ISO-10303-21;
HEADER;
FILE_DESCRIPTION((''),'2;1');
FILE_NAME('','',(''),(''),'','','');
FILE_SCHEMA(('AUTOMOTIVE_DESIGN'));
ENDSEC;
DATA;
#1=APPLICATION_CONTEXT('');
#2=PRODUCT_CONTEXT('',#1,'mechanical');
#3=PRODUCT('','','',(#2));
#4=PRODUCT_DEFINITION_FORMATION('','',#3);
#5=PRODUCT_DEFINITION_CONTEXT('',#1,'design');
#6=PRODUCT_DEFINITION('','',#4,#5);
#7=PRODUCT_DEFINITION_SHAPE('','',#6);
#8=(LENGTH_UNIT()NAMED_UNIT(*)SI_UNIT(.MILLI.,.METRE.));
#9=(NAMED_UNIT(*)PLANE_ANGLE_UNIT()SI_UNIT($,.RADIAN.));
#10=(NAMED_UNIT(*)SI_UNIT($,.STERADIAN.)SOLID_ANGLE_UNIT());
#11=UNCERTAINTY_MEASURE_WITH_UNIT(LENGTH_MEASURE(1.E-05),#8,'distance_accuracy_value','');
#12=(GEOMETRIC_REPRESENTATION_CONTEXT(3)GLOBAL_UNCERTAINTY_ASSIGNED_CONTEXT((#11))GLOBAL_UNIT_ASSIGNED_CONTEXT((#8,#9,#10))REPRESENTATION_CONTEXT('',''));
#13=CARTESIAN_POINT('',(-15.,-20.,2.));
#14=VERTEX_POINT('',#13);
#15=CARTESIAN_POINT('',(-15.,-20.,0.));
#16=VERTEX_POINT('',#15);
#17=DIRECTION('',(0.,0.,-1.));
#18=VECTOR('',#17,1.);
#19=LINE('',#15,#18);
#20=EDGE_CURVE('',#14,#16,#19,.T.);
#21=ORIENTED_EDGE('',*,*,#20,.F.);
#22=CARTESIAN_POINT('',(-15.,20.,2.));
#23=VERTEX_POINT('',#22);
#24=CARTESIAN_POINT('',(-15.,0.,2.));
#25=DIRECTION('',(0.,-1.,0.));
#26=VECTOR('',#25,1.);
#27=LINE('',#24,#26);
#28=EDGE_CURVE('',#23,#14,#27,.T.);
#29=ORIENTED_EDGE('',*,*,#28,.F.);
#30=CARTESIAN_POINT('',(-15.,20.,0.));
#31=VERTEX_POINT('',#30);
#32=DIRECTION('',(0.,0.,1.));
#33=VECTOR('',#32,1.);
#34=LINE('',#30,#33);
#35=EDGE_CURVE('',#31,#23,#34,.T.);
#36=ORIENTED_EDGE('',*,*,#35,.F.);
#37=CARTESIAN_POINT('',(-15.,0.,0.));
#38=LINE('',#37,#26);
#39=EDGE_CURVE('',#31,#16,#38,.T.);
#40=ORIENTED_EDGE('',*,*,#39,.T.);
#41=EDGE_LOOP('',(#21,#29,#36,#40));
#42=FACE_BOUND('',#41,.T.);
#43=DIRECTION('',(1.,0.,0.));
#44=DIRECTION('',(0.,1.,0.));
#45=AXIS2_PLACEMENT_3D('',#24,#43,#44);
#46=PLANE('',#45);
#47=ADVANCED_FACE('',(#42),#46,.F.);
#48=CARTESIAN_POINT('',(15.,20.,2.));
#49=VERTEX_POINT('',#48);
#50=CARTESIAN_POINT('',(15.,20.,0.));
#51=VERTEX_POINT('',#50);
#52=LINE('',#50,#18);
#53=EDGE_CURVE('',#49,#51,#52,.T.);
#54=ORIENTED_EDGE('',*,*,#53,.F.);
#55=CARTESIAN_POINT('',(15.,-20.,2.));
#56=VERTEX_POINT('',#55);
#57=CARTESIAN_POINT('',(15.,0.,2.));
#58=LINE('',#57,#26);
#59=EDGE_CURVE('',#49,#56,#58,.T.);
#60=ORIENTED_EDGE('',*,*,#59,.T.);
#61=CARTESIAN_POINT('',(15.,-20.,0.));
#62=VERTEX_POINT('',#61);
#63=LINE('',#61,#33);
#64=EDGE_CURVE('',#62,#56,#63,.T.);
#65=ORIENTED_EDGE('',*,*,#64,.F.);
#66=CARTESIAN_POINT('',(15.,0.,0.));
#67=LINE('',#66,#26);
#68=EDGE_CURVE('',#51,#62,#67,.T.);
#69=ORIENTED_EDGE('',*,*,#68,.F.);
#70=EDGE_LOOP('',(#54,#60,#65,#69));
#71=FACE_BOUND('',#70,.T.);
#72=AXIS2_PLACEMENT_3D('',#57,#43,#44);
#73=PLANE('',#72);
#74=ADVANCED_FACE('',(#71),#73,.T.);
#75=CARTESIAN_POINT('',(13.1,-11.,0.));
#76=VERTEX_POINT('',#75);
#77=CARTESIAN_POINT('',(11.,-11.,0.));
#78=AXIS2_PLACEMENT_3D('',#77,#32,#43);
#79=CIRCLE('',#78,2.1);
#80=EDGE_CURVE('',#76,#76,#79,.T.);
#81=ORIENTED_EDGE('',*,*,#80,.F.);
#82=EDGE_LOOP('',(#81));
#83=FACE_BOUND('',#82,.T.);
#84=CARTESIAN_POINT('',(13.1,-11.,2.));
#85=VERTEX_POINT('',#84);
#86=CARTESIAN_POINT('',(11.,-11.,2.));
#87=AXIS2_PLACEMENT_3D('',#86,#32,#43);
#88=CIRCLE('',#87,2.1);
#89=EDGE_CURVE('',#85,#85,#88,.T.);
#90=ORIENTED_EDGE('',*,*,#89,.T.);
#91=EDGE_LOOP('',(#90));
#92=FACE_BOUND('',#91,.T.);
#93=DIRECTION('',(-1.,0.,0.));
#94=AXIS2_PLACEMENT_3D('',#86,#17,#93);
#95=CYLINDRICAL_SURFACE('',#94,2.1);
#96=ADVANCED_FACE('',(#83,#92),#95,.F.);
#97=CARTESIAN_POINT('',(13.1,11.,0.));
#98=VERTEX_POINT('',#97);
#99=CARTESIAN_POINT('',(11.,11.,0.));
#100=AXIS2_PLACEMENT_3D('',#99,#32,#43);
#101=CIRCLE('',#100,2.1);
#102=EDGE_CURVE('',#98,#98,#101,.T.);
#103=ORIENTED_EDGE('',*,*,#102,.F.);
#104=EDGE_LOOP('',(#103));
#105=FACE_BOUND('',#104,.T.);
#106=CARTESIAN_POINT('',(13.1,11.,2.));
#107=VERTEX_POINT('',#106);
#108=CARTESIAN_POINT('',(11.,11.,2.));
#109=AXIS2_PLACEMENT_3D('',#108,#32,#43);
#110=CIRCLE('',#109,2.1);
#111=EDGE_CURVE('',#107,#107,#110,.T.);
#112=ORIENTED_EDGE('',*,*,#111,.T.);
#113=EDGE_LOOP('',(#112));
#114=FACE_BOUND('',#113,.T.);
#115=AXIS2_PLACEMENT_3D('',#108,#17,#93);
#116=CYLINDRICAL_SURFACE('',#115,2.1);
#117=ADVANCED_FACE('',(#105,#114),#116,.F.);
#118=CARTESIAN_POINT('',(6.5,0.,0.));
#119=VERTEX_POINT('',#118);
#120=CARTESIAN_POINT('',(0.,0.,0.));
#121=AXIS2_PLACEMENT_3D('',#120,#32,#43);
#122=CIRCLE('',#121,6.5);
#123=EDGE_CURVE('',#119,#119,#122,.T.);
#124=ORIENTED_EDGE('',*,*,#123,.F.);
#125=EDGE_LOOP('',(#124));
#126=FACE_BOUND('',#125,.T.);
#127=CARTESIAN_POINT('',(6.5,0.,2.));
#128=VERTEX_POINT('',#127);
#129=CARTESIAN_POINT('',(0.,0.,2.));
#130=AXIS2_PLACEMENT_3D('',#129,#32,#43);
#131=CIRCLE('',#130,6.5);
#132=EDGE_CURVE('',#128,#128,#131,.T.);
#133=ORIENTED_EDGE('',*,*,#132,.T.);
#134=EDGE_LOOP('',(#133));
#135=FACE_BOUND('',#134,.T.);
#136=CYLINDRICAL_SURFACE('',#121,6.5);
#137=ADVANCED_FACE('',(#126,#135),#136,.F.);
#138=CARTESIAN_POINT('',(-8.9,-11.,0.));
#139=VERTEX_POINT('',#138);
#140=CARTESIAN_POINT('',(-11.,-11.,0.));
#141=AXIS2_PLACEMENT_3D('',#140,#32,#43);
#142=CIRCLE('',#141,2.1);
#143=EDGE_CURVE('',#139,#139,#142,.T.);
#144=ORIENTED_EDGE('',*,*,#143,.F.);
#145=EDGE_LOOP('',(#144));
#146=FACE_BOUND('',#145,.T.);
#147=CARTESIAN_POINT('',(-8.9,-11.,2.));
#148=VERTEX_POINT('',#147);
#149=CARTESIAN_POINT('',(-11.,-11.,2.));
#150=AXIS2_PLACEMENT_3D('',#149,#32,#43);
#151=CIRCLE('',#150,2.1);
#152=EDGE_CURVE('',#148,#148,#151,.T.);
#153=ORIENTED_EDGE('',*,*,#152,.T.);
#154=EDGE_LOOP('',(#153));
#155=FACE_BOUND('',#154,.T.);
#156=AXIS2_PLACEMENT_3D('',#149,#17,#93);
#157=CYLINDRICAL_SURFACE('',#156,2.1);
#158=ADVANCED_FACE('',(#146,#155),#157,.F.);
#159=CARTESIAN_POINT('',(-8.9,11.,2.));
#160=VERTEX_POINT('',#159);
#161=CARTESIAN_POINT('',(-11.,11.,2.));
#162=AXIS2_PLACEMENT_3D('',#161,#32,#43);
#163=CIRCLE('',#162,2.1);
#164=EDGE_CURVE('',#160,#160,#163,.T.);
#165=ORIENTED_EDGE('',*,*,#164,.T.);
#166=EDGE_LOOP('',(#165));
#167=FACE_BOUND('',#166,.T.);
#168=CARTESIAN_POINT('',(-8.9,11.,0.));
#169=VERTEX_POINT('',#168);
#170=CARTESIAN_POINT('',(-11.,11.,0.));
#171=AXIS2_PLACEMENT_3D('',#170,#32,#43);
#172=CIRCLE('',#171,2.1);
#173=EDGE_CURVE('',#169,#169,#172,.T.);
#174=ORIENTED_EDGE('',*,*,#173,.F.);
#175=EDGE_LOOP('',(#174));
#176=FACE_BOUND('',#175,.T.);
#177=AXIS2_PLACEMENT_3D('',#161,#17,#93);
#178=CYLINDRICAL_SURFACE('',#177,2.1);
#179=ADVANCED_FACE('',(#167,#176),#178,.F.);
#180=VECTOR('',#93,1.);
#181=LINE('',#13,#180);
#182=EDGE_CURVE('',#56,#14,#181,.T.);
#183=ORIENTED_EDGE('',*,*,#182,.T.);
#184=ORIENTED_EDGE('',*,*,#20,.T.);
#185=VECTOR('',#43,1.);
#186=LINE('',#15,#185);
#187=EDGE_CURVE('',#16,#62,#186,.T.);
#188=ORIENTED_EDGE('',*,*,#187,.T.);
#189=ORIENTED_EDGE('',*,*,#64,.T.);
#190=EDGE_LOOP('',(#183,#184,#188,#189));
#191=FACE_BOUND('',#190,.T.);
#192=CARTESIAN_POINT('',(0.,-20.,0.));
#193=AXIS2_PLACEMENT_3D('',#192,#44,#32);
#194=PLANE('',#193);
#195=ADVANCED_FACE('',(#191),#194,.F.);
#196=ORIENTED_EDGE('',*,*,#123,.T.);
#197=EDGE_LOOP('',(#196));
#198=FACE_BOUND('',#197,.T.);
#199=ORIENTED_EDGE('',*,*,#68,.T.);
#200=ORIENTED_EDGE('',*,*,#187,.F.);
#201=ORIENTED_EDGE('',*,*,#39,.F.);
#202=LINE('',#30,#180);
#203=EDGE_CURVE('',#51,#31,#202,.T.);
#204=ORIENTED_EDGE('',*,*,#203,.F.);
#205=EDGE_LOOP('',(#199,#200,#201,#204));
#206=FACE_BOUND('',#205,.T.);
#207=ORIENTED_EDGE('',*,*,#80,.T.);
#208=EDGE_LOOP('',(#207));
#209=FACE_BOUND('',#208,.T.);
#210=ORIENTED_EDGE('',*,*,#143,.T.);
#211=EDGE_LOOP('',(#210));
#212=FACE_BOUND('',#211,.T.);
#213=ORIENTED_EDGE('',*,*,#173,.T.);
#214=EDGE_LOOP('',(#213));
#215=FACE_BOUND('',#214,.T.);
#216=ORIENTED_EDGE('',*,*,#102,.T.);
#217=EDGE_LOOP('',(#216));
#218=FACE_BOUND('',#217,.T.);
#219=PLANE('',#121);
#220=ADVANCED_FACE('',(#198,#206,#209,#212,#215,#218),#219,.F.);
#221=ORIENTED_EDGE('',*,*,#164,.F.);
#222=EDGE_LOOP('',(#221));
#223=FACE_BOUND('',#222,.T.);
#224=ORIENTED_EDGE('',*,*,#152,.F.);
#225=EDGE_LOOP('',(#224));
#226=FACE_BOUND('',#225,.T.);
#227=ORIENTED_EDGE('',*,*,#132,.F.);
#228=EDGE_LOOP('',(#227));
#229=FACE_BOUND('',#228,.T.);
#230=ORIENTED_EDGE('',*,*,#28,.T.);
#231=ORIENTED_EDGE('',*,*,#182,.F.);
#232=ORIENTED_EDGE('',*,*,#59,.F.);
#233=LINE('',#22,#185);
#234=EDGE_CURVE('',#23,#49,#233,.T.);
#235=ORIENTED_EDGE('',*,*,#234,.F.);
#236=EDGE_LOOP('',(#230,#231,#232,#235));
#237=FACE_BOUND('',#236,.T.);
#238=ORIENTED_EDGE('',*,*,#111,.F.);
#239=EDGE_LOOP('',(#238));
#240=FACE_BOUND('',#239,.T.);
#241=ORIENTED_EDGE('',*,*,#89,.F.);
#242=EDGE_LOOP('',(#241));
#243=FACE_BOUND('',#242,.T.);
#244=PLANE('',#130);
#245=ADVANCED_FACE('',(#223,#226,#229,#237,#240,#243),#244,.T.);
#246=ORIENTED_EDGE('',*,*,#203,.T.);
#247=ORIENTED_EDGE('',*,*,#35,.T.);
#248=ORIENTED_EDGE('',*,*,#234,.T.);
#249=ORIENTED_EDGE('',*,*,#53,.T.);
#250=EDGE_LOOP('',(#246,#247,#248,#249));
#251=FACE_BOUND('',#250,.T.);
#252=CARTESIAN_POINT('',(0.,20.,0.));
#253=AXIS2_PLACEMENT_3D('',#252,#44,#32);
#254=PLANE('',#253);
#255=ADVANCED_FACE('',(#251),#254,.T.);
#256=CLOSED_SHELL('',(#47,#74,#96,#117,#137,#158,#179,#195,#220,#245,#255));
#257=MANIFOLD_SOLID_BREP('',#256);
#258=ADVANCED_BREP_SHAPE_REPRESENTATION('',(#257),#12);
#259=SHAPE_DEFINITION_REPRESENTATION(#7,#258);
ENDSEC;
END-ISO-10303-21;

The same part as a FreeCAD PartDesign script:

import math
import FreeCAD as App
import Part
import Sketcher
Q = App.Units.Quantity


def add_polygon(sketch, points):
    """Adds a closed chain of lines whose ends are joined by coincident constraints."""
    first, n = sketch.GeometryCount, len(points)
    for a, b in zip(points, points[1:] + points[:1]):
        sketch.addGeometry(Part.LineSegment(App.Vector(*a, 0), App.Vector(*b, 0)), False)
    for i in range(n):
        sketch.addConstraint(Sketcher.Constraint("Coincident", first + i, 2, first + (i + 1) % n, 1))

doc = App.newDocument("Part")
body = doc.addObject("PartDesign::Body", "Body")

# Sketch on XY plane
sketch1 = body.newObject("Sketcher::SketchObject", "Sketch")
sketch1.AttachmentSupport = (doc.getObject("XY_Plane"), [""])
sketch1.MapMode = "FlatFace"
add_polygon(sketch1, [(-15, 15), (-15, -15), (15, -15), (15, 15)])  # lines 0-3
sketch1.addGeometry(Part.ArcOfCircle(Part.Circle(App.Vector(11, 11, 0), App.Vector(0, 0, 1), 2.1), math.radians(90), math.radians(360)), False)  # 4
sketch1.addGeometry(Part.ArcOfCircle(Part.Circle(App.Vector(11, 11, 0), App.Vector(0, 0, 1), 2.1), math.radians(0), math.radians(90)), False)  # 5
sketch1.addGeometry(Part.ArcOfCircle(Part.Circle(App.Vector(-11, 11, 0), App.Vector(0, 0, 1), 2.1), math.radians(0), math.radians(90)), False)  # 6
sketch1.addGeometry(Part.ArcOfCircle(Part.Circle(App.Vector(-11, 11, 0), App.Vector(0, 0, 1), 2.1), math.radians(180), math.radians(360)), False)  # 7
sketch1.addGeometry(Part.ArcOfCircle(Part.Circle(App.Vector(-11, 11, 0), App.Vector(0, 0, 1), 2.1), math.radians(90), math.radians(180)), False)  # 8
sketch1.addGeometry(Part.ArcOfCircle(Part.Circle(App.Vector(-11, -11, 0), App.Vector(0, 0, 1), 2.1), math.radians(0), math.radians(180)), False)  # 9
sketch1.addGeometry(Part.ArcOfCircle(Part.Circle(App.Vector(-11, -11, 0), App.Vector(0, 0, 1), 2.1), math.radians(-90), math.radians(0)), False)  # 10
sketch1.addGeometry(Part.ArcOfCircle(Part.Circle(App.Vector(-11, -11, 0), App.Vector(0, 0, 1), 2.1), math.radians(-180), math.radians(-90)), False)  # 11
sketch1.addGeometry(Part.ArcOfCircle(Part.Circle(App.Vector(11, -11, 0), App.Vector(0, 0, 1), 2.1), math.radians(0), math.radians(270)), False)  # 12
sketch1.addGeometry(Part.ArcOfCircle(Part.Circle(App.Vector(11, -11, 0), App.Vector(0, 0, 1), 2.1), math.radians(-90), math.radians(0)), False)  # 13
sketch1.addConstraint([
    Sketcher.Constraint("Tangent", 4, 1, 5, 2),
    Sketcher.Constraint("Coincident", 5, 1, 4, 2),
    Sketcher.Constraint("Tangent", 6, 1, 7, 2),
    Sketcher.Constraint("Tangent", 7, 1, 8, 2),
    Sketcher.Constraint("Tangent", 8, 1, 6, 2),
    Sketcher.Constraint("Tangent", 9, 1, 10, 2),
    Sketcher.Constraint("Tangent", 10, 1, 11, 2),
    Sketcher.Constraint("Tangent", 11, 1, 9, 2),
    Sketcher.Constraint("Tangent", 12, 1, 13, 2),
    Sketcher.Constraint("Coincident", 13, 1, 12, 2),
    Sketcher.Constraint("Vertical", 0),
    Sketcher.Constraint("Horizontal", 1),
    Sketcher.Constraint("Vertical", 2),
    Sketcher.Constraint("Horizontal", 3),
    Sketcher.Constraint("Equal", 5, 6),
    Sketcher.Constraint("Equal", 8, 9),
    Sketcher.Constraint("Equal", 11, 12),
    Sketcher.Constraint("Symmetric", 4, 3, 9, 3, -1, 1),
    Sketcher.Constraint("Symmetric", 6, 3, 12, 3, -1, 1),
    Sketcher.Constraint("Symmetric", 0, 2, 2, 2, -1, 1),
    Sketcher.Constraint("Symmetric", 4, 3, 6, 3, -2),
    Sketcher.Constraint("Horizontal", 8, 3, 5, 1),
    Sketcher.Constraint("Horizontal", 5, 1, 6, 1),
    Sketcher.Constraint("Horizontal", 6, 1, 7, 1),
    Sketcher.Constraint("Horizontal", 13, 3, 9, 1),
    Sketcher.Constraint("Horizontal", 9, 1, 11, 1),
    Sketcher.Constraint("Horizontal", 11, 1, 12, 1),
    Sketcher.Constraint("Vertical", 13, 3, 4, 1),
    Sketcher.Constraint("Vertical", 11, 3, 8, 1),
    Sketcher.Constraint("Vertical", 8, 1, 10, 1),
    Sketcher.Constraint("Vertical", 4, 1, 13, 1),
    Sketcher.Constraint("Equal", 3, 0),
    Sketcher.Constraint("Radius", 4, Q("2.1 mm")),
    Sketcher.Constraint("DistanceX", 1, 1, 1, 2, Q("30 mm")),
    Sketcher.Constraint("DistanceX", -1, 1, 4, 3, Q("11 mm")),
    Sketcher.Constraint("DistanceY", -1, 1, 4, 3, Q("11 mm")),
])
pad1 = body.newObject("PartDesign::Pad", "Pad")
pad1.Profile = sketch1
pad1.Length = 2

# Sketch on XY plane
sketch2 = body.newObject("Sketcher::SketchObject", "Sketch001")
sketch2.AttachmentSupport = (doc.getObject("XY_Plane"), [""])
sketch2.MapMode = "FlatFace"
sketch2.AttachmentOffset = App.Placement(App.Vector(0, 0, 2), App.Rotation())
sketch2.addGeometry(Part.Circle(App.Vector(0, 0, 0), App.Vector(0, 0, 1), 6), False)
sketch2.addConstraint([
    Sketcher.Constraint("Coincident", 0, 3, -1, 1),
    Sketcher.Constraint("Diameter", 0, Q("13 mm")),
])
pocket1 = body.newObject("PartDesign::Pocket", "Pocket")
pocket1.Profile = sketch2
pocket1.Length = 2

# Sketch on XZ plane
sketch3 = body.newObject("Sketcher::SketchObject", "Sketch002")
sketch3.AttachmentSupport = (doc.getObject("XZ_Plane"), [""])
sketch3.MapMode = "FlatFace"
sketch3.AttachmentOffset = App.Placement(App.Vector(0, 0, -15), App.Rotation())
add_polygon(sketch3, [(-15, 0), (-15, 2), (15, 2), (15, 0)])  # lines 0-3
sketch3.addConstraint([
    Sketcher.Constraint("Vertical", 0),
    Sketcher.Constraint("Horizontal", 1),
    Sketcher.Constraint("Vertical", 2),
    Sketcher.Constraint("Horizontal", 3),
    Sketcher.Constraint("Symmetric", 2, 2, 3, 2, -1, 1),
    Sketcher.Constraint("DistanceX", 1, 1, 1, 2, Q("30 mm")),
    Sketcher.Constraint("DistanceY", 0, 1, 0, 2, Q("2 mm")),
])
pad2 = body.newObject("PartDesign::Pad", "Pad001")
pad2.Profile = sketch3
pad2.Length = 5
pad2.Reversed = True

# Sketch on XZ plane
sketch4 = body.newObject("Sketcher::SketchObject", "Sketch003")
sketch4.AttachmentSupport = (doc.getObject("XZ_Plane"), [""])
sketch4.MapMode = "FlatFace"
sketch4.AttachmentOffset = App.Placement(App.Vector(0, 0, 15), App.Rotation())
add_polygon(sketch4, [(15, 0), (15, 2), (-15, 2), (-15, 0)])  # lines 0-3
sketch4.addConstraint([
    Sketcher.Constraint("Vertical", 0),
    Sketcher.Constraint("Horizontal", 1),
    Sketcher.Constraint("Vertical", 2),
    Sketcher.Constraint("Horizontal", 3),
    Sketcher.Constraint("Symmetric", 2, 2, 3, 2, -1, 1),
    Sketcher.Constraint("DistanceX", 1, 2, 1, 1, Q("30 mm")),
    Sketcher.Constraint("DistanceY", 0, 1, 0, 2, Q("2 mm")),
])
pad3 = body.newObject("PartDesign::Pad", "Pad002")
pad3.Profile = sketch4
pad3.Length = 5

doc.recompute()
